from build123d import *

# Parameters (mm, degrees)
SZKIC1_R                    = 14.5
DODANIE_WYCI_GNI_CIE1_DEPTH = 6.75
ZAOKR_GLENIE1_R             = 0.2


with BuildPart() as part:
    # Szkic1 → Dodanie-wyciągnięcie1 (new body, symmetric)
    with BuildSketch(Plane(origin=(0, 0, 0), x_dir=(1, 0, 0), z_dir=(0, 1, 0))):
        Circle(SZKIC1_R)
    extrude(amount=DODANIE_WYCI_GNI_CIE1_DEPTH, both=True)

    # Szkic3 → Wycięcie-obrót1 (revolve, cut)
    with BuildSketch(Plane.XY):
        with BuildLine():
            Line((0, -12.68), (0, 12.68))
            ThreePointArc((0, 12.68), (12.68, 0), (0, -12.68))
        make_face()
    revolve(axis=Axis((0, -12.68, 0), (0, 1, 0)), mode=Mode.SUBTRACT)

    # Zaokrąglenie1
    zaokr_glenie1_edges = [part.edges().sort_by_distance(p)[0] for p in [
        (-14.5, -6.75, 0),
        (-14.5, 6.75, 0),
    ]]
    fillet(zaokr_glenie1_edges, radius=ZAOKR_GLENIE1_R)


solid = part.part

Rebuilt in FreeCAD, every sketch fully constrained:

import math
import FreeCAD as App
import Part
import Sketcher


def edges_at(feature, points):
    """Names of the edges that pass closest to the given points."""
    edges = feature.Shape.Edges
    near = lambda p: min(range(len(edges)), key=lambda i: edges[i].distToShape(Part.Vertex(*p))[0])
    return sorted({f"Edge{near(p) + 1}" for p in points})

doc = App.newDocument("Part")
body = doc.addObject("PartDesign::Body", "Body")

# Sketch on XZ plane
sketch1 = body.newObject("Sketcher::SketchObject", "Sketch")
sketch1.AttachmentSupport = (doc.getObject("XZ_Plane"), [""])
sketch1.MapMode = "FlatFace"
sketch1.addGeometry(Part.Circle(App.Vector(0, 0, 0), App.Vector(0, 0, 1), 14), False)
sketch1.addConstraint(Sketcher.Constraint("Coincident", 0, 3, -1, 1))
sketch1.addConstraint(Sketcher.Constraint("Diameter", 0, 29.0))
pad1 = body.newObject("PartDesign::Pad", "Pad")
pad1.Profile = sketch1
pad1.Length = 13.5
pad1.Midplane = True

# Sketch on XY plane
sketch2 = body.newObject("Sketcher::SketchObject", "Sketch001")
sketch2.AttachmentSupport = (doc.getObject("XY_Plane"), [""])
sketch2.MapMode = "FlatFace"
sketch2.addGeometry(Part.LineSegment(App.Vector(0, 13, 0), App.Vector(0, -13, 0)), False)
sketch2.addGeometry(Part.ArcOfCircle(Part.Circle(App.Vector(0, 0, 0), App.Vector(0, 0, 1), 13), math.radians(-90), math.radians(90)), False)
sketch2.addConstraint(Sketcher.Constraint("Coincident", 0, 1, 1, 2))
sketch2.addConstraint(Sketcher.Constraint("Coincident", 1, 1, 0, 2))
sketch2.addConstraint(Sketcher.Constraint("Vertical", 0))
sketch2.addConstraint(Sketcher.Constraint("Coincident", 1, 3, -1, 1))
sketch2.addConstraint(Sketcher.Constraint("PointOnObject", 0, 1, -2))
sketch2.addConstraint(Sketcher.Constraint("Radius", 1, 12.68))
groove = body.newObject("PartDesign::Groove", "Groove")
groove.Profile = sketch2
groove.ReferenceAxis = (sketch2, ["V_Axis"])
groove.Angle = 360
doc.recompute()

fillet = body.newObject("PartDesign::Fillet", "Fillet")
fillet.Base = (groove, edges_at(groove, [(-14.5, -6.75, 0), (-14.5, 6.75, 0)]))
fillet.Radius = 0.2

doc.recompute()
